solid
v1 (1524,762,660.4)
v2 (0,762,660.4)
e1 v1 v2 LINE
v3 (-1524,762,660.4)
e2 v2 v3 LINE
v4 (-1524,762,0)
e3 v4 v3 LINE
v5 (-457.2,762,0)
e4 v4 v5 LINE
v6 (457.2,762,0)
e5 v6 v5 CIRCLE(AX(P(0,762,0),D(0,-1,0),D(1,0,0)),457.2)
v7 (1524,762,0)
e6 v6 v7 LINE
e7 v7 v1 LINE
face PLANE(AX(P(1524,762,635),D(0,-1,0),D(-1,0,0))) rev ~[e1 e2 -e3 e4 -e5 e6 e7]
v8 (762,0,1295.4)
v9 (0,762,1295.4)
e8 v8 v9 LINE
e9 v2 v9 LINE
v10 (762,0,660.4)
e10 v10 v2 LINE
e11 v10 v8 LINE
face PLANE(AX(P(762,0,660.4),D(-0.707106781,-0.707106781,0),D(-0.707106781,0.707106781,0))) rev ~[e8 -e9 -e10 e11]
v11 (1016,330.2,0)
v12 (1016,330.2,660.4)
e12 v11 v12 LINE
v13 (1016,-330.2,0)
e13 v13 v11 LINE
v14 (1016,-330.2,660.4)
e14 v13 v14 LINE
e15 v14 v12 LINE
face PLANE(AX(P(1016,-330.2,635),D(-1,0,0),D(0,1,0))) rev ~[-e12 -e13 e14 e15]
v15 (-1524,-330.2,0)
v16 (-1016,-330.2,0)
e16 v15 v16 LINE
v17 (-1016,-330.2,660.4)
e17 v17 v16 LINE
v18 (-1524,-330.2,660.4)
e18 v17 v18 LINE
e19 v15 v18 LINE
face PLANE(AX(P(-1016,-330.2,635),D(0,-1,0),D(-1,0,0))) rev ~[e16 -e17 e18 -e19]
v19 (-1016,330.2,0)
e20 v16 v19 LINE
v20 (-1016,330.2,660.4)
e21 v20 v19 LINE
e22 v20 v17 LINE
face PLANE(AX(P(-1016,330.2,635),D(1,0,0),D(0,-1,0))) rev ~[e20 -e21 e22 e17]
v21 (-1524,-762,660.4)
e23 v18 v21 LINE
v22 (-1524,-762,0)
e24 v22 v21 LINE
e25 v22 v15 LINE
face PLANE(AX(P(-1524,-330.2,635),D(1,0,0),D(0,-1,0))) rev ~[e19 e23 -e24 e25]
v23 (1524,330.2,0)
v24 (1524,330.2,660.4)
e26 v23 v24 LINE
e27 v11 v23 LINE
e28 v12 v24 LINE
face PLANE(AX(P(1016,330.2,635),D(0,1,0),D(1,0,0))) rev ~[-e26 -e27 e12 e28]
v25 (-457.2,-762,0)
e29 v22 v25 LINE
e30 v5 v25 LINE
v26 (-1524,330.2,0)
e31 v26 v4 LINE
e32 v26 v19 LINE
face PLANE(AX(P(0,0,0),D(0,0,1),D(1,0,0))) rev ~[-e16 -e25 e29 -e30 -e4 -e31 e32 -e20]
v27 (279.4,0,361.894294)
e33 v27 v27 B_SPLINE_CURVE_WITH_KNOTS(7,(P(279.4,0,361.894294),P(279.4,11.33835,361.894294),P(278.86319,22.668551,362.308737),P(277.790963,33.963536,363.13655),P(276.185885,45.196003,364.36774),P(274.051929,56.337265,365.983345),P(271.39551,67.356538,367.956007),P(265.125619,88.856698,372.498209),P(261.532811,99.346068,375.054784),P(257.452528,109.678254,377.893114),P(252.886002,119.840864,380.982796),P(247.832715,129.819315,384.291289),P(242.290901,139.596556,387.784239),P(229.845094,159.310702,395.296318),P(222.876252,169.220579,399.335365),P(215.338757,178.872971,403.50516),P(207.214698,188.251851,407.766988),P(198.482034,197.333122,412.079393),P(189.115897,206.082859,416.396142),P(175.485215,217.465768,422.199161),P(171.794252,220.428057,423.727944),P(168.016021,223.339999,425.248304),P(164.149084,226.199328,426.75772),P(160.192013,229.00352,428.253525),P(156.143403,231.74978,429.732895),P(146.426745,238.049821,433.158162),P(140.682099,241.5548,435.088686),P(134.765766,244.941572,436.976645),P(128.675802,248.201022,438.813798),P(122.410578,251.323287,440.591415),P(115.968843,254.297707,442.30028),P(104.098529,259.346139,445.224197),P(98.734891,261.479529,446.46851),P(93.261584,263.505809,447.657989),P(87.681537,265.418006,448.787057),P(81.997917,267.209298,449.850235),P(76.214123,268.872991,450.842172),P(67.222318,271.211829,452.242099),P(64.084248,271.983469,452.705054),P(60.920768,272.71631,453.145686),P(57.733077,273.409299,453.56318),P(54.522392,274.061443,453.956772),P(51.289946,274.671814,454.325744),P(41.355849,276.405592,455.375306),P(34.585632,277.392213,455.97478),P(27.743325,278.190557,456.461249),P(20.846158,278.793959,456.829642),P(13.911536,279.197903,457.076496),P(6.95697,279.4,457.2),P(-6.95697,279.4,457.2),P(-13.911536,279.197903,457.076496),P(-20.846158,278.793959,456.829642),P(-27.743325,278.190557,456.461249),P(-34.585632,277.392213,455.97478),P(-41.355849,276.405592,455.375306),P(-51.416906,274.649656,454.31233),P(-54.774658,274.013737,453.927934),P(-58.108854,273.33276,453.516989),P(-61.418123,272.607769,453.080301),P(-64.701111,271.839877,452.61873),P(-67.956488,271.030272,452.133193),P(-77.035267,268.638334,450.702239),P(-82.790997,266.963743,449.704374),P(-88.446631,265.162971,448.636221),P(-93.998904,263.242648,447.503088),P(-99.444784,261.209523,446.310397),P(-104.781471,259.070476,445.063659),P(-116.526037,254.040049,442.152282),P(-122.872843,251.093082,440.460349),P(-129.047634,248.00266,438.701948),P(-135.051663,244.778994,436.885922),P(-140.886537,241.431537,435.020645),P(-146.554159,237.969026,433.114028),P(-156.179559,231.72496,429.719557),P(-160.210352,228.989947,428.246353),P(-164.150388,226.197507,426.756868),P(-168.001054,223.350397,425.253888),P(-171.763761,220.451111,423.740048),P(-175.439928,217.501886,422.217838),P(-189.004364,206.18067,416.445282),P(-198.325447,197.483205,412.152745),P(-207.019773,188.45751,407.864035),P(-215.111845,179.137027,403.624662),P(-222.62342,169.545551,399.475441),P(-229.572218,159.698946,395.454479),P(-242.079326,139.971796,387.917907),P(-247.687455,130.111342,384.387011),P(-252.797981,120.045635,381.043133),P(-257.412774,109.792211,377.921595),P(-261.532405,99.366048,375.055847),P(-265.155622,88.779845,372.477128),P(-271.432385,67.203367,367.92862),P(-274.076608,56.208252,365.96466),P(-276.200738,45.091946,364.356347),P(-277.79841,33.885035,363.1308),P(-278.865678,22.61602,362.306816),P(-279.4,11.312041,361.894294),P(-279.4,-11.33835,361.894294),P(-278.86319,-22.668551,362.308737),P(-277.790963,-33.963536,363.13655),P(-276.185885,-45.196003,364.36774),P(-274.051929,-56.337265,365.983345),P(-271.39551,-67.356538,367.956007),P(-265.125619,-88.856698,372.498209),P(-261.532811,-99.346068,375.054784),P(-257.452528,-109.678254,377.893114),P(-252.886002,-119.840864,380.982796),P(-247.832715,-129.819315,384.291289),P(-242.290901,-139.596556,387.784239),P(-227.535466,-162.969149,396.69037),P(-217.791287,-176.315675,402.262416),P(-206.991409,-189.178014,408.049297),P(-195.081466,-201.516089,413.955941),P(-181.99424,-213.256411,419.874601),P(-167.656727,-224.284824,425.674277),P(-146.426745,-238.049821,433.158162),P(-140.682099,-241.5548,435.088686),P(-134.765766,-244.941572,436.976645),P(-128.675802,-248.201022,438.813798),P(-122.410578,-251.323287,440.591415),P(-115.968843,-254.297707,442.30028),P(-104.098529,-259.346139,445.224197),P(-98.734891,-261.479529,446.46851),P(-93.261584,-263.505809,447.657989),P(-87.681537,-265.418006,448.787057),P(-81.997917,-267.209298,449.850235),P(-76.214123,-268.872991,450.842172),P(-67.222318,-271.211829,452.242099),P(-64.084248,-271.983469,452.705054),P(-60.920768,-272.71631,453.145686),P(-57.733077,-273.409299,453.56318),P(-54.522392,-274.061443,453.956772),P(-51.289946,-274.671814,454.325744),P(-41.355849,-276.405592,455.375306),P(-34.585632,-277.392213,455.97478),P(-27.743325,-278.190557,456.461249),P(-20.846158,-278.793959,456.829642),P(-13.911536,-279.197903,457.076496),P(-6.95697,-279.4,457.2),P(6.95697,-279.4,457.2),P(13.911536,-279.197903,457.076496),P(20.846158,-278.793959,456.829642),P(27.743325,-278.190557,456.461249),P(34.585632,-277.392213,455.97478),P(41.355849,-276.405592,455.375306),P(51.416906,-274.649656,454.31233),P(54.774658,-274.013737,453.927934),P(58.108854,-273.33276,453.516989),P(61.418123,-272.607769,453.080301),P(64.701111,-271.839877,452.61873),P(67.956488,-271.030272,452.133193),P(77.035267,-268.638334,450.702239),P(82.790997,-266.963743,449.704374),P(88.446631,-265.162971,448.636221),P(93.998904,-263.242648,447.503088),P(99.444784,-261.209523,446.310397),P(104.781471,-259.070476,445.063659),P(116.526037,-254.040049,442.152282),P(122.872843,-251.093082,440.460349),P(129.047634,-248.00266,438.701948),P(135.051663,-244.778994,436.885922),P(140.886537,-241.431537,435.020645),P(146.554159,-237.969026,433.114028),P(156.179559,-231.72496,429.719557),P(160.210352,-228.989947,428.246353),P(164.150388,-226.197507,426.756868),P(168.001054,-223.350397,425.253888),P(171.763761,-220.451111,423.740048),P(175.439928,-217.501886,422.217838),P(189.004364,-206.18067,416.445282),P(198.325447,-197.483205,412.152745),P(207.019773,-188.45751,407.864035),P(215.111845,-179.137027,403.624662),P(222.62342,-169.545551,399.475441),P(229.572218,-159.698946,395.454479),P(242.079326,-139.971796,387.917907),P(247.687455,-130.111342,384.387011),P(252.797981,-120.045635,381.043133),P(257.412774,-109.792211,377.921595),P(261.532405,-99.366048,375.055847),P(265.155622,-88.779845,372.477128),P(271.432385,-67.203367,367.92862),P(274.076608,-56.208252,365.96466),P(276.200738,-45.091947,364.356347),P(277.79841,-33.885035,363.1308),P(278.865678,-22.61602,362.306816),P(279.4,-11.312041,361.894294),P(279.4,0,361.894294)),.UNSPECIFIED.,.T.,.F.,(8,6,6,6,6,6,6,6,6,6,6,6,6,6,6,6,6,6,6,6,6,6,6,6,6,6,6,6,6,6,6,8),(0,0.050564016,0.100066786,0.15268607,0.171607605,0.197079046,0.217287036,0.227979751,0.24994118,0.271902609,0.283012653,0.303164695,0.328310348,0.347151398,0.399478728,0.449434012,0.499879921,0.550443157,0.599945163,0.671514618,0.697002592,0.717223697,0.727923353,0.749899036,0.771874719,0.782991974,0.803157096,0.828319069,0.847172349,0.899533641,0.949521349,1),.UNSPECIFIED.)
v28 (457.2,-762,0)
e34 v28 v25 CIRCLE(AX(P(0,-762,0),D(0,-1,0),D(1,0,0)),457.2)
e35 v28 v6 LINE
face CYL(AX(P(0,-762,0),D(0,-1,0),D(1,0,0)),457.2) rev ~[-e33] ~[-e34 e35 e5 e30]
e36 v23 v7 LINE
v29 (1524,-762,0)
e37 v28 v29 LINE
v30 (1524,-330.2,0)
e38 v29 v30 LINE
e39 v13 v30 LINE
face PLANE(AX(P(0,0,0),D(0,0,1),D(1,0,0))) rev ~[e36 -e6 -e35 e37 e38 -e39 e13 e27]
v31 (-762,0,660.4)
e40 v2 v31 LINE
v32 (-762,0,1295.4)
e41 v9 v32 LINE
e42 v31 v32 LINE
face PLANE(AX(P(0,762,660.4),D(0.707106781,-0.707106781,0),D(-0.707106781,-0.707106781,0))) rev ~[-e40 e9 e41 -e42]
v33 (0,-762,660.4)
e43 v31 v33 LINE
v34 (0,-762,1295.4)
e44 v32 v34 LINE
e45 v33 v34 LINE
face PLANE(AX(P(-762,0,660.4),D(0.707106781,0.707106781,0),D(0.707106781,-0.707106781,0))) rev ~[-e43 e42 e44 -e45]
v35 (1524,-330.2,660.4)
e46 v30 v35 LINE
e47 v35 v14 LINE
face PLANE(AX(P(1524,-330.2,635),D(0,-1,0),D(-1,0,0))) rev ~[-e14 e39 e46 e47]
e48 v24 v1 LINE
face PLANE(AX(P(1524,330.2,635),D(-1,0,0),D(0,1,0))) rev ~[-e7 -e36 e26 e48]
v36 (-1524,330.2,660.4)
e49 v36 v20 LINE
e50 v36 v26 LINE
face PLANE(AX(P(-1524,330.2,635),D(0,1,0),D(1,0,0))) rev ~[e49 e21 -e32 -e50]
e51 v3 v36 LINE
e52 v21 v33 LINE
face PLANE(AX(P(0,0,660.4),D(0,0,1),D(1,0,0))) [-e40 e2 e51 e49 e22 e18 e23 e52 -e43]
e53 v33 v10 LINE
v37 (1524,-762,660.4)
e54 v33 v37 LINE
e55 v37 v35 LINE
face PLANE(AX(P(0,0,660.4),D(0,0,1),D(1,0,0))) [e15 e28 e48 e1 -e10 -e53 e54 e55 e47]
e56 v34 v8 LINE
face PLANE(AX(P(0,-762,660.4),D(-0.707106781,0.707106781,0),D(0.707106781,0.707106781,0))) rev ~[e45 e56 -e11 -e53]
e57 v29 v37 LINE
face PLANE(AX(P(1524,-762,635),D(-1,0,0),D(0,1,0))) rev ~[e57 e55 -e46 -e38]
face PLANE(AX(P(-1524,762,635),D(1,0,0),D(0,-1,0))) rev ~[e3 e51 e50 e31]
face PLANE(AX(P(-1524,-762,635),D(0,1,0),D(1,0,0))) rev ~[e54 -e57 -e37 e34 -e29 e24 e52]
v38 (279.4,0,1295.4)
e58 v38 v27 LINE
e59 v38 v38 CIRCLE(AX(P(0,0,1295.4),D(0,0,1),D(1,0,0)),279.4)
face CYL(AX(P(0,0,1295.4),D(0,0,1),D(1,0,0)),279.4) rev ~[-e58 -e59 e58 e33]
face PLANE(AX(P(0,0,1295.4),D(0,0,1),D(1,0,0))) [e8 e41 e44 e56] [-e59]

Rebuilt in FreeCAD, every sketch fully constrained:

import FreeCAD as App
import Part
import Sketcher
Q = App.Units.Quantity


def add_polygon(sketch, points):
    """Adds a closed chain of lines whose ends are joined by coincident constraints."""
    first, n = sketch.GeometryCount, len(points)
    for a, b in zip(points, points[1:] + points[:1]):
        sketch.addGeometry(Part.LineSegment(App.Vector(*a, 0), App.Vector(*b, 0)), False)
    for i in range(n):
        sketch.addConstraint(Sketcher.Constraint("Coincident", first + i, 2, first + (i + 1) % n, 1))

doc = App.newDocument("Part")
body = doc.addObject("PartDesign::Body", "Body")

sketch1 = body.newObject("Sketcher::SketchObject", "Sketch")
sketch1.AttachmentSupport = (doc.getObject("XY_Plane"), [""])
sketch1.MapMode = "FlatFace"
add_polygon(sketch1, [(-1524, 762), (-1524, -762), (1524, -762), (1524, 762)])
sketch1.addConstraint([
    Sketcher.Constraint("Vertical", 0),
    Sketcher.Constraint("Horizontal", 1),
    Sketcher.Constraint("Vertical", 2),
    Sketcher.Constraint("Horizontal", 3),
    Sketcher.Constraint("Symmetric", 0, 2, 2, 2, -1, 1),
    Sketcher.Constraint("DistanceX", 1, 1, 1, 2, Q("120 in")),
    Sketcher.Constraint("DistanceY", 0, 2, 0, 1, Q("60 in")),
])
pad1 = body.newObject("PartDesign::Pad", "Pad")
pad1.Profile = sketch1
pad1.Length = Q("25 in")

sketch2 = body.newObject("Sketcher::SketchObject", "Sketch001")
sketch2.AttachmentSupport = (doc.getObject("XY_Plane"), [""])
sketch2.MapMode = "FlatFace"
sketch2.AttachmentOffset = App.Placement(App.Vector(0, 0, 25 * 25.4), App.Rotation())
add_polygon(sketch2, [(-2032, 330), (-2032, -330), (-1016, -330), (-1016, 330)])
sketch2.addConstraint([
    Sketcher.Constraint("Vertical", 0),
    Sketcher.Constraint("Horizontal", 1),
    Sketcher.Constraint("Vertical", 2),
    Sketcher.Constraint("Horizontal", 3),
    Sketcher.Constraint("DistanceX", 1, 1, 1, 2, Q("40 in")),
    Sketcher.Constraint("DistanceY", 0, 2, 0, 1, Q("26 in")),
    Sketcher.Constraint("DistanceX", 0, 2, -1, 1, Q("80 in")),
    Sketcher.Constraint("DistanceY", 0, 2, -1, 1, Q("13 in")),
])
pocket1 = body.newObject("PartDesign::Pocket", "Pocket")
pocket1.Profile = sketch2
pocket1.Type = "ThroughAll"

sketch3 = body.newObject("Sketcher::SketchObject", "Sketch002")
sketch3.AttachmentSupport = (doc.getObject("XY_Plane"), [""])
sketch3.MapMode = "FlatFace"
sketch3.AttachmentOffset = App.Placement(App.Vector(0, 0, 25 * 25.4), App.Rotation())
add_polygon(sketch3, [(1016, 330), (1016, -330), (2032, -330), (2032, 330)])
sketch3.addConstraint([
    Sketcher.Constraint("Vertical", 0),
    Sketcher.Constraint("Horizontal", 1),
    Sketcher.Constraint("Vertical", 2),
    Sketcher.Constraint("Horizontal", 3),
    Sketcher.Constraint("DistanceX", 1, 1, 1, 2, Q("40 in")),
    Sketcher.Constraint("DistanceY", 0, 2, 0, 1, Q("26 in")),
    Sketcher.Constraint("DistanceX", -1, 1, 0, 2, Q("40 in")),
    Sketcher.Constraint("DistanceY", 0, 2, -1, 1, Q("13 in")),
])
pocket2 = body.newObject("PartDesign::Pocket", "Pocket001")
pocket2.Profile = sketch3
pocket2.Type = "ThroughAll"

sketch4 = body.newObject("Sketcher::SketchObject", "Sketch003")
sketch4.AttachmentSupport = (doc.getObject("XY_Plane"), [""])
sketch4.MapMode = "FlatFace"
sketch4.AttachmentOffset = App.Placement(App.Vector(0, 0, 25 * 25.4), App.Rotation())
add_polygon(sketch4, [(-1016, -330), (-1524, -330), (-1524, -762), (1524, -762), (1524, -330), (1016, -330), (1016, 330), (1524, 330), (1524, 762), (-1524, 762), (-1524, 330), (-1016, 330)])
sketch4.addConstraint([
    Sketcher.Constraint("Horizontal", 0),
    Sketcher.Constraint("Vertical", 1),
    Sketcher.Constraint("Horizontal", 2),
    Sketcher.Constraint("Vertical", 3),
    Sketcher.Constraint("Horizontal", 4),
    Sketcher.Constraint("Vertical", 5),
    Sketcher.Constraint("Horizontal", 6),
    Sketcher.Constraint("Vertical", 7),
    Sketcher.Constraint("Horizontal", 8),
    Sketcher.Constraint("Vertical", 9),
    Sketcher.Constraint("Horizontal", 10),
    Sketcher.Constraint("Vertical", 11),
    Sketcher.Constraint("Symmetric", 0, 2, 6, 2, -1, 1),
    Sketcher.Constraint("Symmetric", 2, 2, 8, 2, -1, 1),
    Sketcher.Constraint("Symmetric", 4, 2, 10, 2, -1, 1),
    Sketcher.Constraint("Symmetric", 0, 2, 3, 2, -2),
    Sketcher.Constraint("DistanceX", 0, 2, 0, 1, Q("20 in")),
    Sketcher.Constraint("DistanceX", 2, 1, 2, 2, Q("120 in")),
    Sketcher.Constraint("DistanceY", 1, 2, 1, 1, Q("17 in")),
    Sketcher.Constraint("DistanceY", 5, 1, 5, 2, Q("26 in")),
])
pad2 = body.newObject("PartDesign::Pad", "Pad001")
pad2.Profile = sketch4
pad2.Length = Q("1 in")

sketch5 = body.newObject("Sketcher::SketchObject", "Sketch004")
sketch5.AttachmentSupport = (doc.getObject("XY_Plane"), [""])
sketch5.MapMode = "FlatFace"
sketch5.AttachmentOffset = App.Placement(App.Vector(0, 0, 26 * 25.4), App.Rotation())
add_polygon(sketch5, [(762, 0), (0, 762), (-762, 0), (0, -762)])
sketch5.addConstraint([
    Sketcher.Constraint("Symmetric", 0, 2, 2, 2, -1, 1),
    Sketcher.Constraint("Symmetric", 1, 2, 3, 2, -1, 1),
    Sketcher.Constraint("PointOnObject", 0, 2, -2),
    Sketcher.Constraint("PointOnObject", 1, 2, -1),
    Sketcher.Constraint("Perpendicular", 0, 1),
    Sketcher.Constraint("DistanceY", -1, 1, 0, 2, Q("30 in")),
])
pad3 = body.newObject("PartDesign::Pad", "Pad002")
pad3.Profile = sketch5
pad3.Length = Q("25 in")

sketch6 = body.newObject("Sketcher::SketchObject", "Sketch005")
sketch6.AttachmentSupport = (doc.getObject("XY_Plane"), [""])
sketch6.MapMode = "FlatFace"
sketch6.AttachmentOffset = App.Placement(App.Vector(0, 0, 51 * 25.4), App.Rotation())
sketch6.addGeometry(Part.Circle(App.Vector(0, 0, 0), App.Vector(0, 0, 1), 279), False)
sketch6.addConstraint([
    Sketcher.Constraint("Coincident", 0, 3, -1, 1),
    Sketcher.Constraint("Diameter", 0, Q("22 in")),
])
pocket3 = body.newObject("PartDesign::Pocket", "Pocket002")
pocket3.Profile = sketch6
pocket3.Type = "ThroughAll"

sketch7 = body.newObject("Sketcher::SketchObject", "Sketch006")
sketch7.AttachmentSupport = (doc.getObject("XZ_Plane"), [""])
sketch7.MapMode = "FlatFace"
sketch7.AttachmentOffset = App.Placement(App.Vector(0, 0, 30 * 25.4), App.Rotation())
sketch7.addGeometry(Part.Circle(App.Vector(0, 0, 0), App.Vector(0, 0, 1), 457), False)
sketch7.addConstraint([
    Sketcher.Constraint("Coincident", 0, 3, -1, 1),
    Sketcher.Constraint("Diameter", 0, Q("36 in")),
])
pocket4 = body.newObject("PartDesign::Pocket", "Pocket003")
pocket4.Profile = sketch7
pocket4.Type = "ThroughAll"

doc.recompute()
